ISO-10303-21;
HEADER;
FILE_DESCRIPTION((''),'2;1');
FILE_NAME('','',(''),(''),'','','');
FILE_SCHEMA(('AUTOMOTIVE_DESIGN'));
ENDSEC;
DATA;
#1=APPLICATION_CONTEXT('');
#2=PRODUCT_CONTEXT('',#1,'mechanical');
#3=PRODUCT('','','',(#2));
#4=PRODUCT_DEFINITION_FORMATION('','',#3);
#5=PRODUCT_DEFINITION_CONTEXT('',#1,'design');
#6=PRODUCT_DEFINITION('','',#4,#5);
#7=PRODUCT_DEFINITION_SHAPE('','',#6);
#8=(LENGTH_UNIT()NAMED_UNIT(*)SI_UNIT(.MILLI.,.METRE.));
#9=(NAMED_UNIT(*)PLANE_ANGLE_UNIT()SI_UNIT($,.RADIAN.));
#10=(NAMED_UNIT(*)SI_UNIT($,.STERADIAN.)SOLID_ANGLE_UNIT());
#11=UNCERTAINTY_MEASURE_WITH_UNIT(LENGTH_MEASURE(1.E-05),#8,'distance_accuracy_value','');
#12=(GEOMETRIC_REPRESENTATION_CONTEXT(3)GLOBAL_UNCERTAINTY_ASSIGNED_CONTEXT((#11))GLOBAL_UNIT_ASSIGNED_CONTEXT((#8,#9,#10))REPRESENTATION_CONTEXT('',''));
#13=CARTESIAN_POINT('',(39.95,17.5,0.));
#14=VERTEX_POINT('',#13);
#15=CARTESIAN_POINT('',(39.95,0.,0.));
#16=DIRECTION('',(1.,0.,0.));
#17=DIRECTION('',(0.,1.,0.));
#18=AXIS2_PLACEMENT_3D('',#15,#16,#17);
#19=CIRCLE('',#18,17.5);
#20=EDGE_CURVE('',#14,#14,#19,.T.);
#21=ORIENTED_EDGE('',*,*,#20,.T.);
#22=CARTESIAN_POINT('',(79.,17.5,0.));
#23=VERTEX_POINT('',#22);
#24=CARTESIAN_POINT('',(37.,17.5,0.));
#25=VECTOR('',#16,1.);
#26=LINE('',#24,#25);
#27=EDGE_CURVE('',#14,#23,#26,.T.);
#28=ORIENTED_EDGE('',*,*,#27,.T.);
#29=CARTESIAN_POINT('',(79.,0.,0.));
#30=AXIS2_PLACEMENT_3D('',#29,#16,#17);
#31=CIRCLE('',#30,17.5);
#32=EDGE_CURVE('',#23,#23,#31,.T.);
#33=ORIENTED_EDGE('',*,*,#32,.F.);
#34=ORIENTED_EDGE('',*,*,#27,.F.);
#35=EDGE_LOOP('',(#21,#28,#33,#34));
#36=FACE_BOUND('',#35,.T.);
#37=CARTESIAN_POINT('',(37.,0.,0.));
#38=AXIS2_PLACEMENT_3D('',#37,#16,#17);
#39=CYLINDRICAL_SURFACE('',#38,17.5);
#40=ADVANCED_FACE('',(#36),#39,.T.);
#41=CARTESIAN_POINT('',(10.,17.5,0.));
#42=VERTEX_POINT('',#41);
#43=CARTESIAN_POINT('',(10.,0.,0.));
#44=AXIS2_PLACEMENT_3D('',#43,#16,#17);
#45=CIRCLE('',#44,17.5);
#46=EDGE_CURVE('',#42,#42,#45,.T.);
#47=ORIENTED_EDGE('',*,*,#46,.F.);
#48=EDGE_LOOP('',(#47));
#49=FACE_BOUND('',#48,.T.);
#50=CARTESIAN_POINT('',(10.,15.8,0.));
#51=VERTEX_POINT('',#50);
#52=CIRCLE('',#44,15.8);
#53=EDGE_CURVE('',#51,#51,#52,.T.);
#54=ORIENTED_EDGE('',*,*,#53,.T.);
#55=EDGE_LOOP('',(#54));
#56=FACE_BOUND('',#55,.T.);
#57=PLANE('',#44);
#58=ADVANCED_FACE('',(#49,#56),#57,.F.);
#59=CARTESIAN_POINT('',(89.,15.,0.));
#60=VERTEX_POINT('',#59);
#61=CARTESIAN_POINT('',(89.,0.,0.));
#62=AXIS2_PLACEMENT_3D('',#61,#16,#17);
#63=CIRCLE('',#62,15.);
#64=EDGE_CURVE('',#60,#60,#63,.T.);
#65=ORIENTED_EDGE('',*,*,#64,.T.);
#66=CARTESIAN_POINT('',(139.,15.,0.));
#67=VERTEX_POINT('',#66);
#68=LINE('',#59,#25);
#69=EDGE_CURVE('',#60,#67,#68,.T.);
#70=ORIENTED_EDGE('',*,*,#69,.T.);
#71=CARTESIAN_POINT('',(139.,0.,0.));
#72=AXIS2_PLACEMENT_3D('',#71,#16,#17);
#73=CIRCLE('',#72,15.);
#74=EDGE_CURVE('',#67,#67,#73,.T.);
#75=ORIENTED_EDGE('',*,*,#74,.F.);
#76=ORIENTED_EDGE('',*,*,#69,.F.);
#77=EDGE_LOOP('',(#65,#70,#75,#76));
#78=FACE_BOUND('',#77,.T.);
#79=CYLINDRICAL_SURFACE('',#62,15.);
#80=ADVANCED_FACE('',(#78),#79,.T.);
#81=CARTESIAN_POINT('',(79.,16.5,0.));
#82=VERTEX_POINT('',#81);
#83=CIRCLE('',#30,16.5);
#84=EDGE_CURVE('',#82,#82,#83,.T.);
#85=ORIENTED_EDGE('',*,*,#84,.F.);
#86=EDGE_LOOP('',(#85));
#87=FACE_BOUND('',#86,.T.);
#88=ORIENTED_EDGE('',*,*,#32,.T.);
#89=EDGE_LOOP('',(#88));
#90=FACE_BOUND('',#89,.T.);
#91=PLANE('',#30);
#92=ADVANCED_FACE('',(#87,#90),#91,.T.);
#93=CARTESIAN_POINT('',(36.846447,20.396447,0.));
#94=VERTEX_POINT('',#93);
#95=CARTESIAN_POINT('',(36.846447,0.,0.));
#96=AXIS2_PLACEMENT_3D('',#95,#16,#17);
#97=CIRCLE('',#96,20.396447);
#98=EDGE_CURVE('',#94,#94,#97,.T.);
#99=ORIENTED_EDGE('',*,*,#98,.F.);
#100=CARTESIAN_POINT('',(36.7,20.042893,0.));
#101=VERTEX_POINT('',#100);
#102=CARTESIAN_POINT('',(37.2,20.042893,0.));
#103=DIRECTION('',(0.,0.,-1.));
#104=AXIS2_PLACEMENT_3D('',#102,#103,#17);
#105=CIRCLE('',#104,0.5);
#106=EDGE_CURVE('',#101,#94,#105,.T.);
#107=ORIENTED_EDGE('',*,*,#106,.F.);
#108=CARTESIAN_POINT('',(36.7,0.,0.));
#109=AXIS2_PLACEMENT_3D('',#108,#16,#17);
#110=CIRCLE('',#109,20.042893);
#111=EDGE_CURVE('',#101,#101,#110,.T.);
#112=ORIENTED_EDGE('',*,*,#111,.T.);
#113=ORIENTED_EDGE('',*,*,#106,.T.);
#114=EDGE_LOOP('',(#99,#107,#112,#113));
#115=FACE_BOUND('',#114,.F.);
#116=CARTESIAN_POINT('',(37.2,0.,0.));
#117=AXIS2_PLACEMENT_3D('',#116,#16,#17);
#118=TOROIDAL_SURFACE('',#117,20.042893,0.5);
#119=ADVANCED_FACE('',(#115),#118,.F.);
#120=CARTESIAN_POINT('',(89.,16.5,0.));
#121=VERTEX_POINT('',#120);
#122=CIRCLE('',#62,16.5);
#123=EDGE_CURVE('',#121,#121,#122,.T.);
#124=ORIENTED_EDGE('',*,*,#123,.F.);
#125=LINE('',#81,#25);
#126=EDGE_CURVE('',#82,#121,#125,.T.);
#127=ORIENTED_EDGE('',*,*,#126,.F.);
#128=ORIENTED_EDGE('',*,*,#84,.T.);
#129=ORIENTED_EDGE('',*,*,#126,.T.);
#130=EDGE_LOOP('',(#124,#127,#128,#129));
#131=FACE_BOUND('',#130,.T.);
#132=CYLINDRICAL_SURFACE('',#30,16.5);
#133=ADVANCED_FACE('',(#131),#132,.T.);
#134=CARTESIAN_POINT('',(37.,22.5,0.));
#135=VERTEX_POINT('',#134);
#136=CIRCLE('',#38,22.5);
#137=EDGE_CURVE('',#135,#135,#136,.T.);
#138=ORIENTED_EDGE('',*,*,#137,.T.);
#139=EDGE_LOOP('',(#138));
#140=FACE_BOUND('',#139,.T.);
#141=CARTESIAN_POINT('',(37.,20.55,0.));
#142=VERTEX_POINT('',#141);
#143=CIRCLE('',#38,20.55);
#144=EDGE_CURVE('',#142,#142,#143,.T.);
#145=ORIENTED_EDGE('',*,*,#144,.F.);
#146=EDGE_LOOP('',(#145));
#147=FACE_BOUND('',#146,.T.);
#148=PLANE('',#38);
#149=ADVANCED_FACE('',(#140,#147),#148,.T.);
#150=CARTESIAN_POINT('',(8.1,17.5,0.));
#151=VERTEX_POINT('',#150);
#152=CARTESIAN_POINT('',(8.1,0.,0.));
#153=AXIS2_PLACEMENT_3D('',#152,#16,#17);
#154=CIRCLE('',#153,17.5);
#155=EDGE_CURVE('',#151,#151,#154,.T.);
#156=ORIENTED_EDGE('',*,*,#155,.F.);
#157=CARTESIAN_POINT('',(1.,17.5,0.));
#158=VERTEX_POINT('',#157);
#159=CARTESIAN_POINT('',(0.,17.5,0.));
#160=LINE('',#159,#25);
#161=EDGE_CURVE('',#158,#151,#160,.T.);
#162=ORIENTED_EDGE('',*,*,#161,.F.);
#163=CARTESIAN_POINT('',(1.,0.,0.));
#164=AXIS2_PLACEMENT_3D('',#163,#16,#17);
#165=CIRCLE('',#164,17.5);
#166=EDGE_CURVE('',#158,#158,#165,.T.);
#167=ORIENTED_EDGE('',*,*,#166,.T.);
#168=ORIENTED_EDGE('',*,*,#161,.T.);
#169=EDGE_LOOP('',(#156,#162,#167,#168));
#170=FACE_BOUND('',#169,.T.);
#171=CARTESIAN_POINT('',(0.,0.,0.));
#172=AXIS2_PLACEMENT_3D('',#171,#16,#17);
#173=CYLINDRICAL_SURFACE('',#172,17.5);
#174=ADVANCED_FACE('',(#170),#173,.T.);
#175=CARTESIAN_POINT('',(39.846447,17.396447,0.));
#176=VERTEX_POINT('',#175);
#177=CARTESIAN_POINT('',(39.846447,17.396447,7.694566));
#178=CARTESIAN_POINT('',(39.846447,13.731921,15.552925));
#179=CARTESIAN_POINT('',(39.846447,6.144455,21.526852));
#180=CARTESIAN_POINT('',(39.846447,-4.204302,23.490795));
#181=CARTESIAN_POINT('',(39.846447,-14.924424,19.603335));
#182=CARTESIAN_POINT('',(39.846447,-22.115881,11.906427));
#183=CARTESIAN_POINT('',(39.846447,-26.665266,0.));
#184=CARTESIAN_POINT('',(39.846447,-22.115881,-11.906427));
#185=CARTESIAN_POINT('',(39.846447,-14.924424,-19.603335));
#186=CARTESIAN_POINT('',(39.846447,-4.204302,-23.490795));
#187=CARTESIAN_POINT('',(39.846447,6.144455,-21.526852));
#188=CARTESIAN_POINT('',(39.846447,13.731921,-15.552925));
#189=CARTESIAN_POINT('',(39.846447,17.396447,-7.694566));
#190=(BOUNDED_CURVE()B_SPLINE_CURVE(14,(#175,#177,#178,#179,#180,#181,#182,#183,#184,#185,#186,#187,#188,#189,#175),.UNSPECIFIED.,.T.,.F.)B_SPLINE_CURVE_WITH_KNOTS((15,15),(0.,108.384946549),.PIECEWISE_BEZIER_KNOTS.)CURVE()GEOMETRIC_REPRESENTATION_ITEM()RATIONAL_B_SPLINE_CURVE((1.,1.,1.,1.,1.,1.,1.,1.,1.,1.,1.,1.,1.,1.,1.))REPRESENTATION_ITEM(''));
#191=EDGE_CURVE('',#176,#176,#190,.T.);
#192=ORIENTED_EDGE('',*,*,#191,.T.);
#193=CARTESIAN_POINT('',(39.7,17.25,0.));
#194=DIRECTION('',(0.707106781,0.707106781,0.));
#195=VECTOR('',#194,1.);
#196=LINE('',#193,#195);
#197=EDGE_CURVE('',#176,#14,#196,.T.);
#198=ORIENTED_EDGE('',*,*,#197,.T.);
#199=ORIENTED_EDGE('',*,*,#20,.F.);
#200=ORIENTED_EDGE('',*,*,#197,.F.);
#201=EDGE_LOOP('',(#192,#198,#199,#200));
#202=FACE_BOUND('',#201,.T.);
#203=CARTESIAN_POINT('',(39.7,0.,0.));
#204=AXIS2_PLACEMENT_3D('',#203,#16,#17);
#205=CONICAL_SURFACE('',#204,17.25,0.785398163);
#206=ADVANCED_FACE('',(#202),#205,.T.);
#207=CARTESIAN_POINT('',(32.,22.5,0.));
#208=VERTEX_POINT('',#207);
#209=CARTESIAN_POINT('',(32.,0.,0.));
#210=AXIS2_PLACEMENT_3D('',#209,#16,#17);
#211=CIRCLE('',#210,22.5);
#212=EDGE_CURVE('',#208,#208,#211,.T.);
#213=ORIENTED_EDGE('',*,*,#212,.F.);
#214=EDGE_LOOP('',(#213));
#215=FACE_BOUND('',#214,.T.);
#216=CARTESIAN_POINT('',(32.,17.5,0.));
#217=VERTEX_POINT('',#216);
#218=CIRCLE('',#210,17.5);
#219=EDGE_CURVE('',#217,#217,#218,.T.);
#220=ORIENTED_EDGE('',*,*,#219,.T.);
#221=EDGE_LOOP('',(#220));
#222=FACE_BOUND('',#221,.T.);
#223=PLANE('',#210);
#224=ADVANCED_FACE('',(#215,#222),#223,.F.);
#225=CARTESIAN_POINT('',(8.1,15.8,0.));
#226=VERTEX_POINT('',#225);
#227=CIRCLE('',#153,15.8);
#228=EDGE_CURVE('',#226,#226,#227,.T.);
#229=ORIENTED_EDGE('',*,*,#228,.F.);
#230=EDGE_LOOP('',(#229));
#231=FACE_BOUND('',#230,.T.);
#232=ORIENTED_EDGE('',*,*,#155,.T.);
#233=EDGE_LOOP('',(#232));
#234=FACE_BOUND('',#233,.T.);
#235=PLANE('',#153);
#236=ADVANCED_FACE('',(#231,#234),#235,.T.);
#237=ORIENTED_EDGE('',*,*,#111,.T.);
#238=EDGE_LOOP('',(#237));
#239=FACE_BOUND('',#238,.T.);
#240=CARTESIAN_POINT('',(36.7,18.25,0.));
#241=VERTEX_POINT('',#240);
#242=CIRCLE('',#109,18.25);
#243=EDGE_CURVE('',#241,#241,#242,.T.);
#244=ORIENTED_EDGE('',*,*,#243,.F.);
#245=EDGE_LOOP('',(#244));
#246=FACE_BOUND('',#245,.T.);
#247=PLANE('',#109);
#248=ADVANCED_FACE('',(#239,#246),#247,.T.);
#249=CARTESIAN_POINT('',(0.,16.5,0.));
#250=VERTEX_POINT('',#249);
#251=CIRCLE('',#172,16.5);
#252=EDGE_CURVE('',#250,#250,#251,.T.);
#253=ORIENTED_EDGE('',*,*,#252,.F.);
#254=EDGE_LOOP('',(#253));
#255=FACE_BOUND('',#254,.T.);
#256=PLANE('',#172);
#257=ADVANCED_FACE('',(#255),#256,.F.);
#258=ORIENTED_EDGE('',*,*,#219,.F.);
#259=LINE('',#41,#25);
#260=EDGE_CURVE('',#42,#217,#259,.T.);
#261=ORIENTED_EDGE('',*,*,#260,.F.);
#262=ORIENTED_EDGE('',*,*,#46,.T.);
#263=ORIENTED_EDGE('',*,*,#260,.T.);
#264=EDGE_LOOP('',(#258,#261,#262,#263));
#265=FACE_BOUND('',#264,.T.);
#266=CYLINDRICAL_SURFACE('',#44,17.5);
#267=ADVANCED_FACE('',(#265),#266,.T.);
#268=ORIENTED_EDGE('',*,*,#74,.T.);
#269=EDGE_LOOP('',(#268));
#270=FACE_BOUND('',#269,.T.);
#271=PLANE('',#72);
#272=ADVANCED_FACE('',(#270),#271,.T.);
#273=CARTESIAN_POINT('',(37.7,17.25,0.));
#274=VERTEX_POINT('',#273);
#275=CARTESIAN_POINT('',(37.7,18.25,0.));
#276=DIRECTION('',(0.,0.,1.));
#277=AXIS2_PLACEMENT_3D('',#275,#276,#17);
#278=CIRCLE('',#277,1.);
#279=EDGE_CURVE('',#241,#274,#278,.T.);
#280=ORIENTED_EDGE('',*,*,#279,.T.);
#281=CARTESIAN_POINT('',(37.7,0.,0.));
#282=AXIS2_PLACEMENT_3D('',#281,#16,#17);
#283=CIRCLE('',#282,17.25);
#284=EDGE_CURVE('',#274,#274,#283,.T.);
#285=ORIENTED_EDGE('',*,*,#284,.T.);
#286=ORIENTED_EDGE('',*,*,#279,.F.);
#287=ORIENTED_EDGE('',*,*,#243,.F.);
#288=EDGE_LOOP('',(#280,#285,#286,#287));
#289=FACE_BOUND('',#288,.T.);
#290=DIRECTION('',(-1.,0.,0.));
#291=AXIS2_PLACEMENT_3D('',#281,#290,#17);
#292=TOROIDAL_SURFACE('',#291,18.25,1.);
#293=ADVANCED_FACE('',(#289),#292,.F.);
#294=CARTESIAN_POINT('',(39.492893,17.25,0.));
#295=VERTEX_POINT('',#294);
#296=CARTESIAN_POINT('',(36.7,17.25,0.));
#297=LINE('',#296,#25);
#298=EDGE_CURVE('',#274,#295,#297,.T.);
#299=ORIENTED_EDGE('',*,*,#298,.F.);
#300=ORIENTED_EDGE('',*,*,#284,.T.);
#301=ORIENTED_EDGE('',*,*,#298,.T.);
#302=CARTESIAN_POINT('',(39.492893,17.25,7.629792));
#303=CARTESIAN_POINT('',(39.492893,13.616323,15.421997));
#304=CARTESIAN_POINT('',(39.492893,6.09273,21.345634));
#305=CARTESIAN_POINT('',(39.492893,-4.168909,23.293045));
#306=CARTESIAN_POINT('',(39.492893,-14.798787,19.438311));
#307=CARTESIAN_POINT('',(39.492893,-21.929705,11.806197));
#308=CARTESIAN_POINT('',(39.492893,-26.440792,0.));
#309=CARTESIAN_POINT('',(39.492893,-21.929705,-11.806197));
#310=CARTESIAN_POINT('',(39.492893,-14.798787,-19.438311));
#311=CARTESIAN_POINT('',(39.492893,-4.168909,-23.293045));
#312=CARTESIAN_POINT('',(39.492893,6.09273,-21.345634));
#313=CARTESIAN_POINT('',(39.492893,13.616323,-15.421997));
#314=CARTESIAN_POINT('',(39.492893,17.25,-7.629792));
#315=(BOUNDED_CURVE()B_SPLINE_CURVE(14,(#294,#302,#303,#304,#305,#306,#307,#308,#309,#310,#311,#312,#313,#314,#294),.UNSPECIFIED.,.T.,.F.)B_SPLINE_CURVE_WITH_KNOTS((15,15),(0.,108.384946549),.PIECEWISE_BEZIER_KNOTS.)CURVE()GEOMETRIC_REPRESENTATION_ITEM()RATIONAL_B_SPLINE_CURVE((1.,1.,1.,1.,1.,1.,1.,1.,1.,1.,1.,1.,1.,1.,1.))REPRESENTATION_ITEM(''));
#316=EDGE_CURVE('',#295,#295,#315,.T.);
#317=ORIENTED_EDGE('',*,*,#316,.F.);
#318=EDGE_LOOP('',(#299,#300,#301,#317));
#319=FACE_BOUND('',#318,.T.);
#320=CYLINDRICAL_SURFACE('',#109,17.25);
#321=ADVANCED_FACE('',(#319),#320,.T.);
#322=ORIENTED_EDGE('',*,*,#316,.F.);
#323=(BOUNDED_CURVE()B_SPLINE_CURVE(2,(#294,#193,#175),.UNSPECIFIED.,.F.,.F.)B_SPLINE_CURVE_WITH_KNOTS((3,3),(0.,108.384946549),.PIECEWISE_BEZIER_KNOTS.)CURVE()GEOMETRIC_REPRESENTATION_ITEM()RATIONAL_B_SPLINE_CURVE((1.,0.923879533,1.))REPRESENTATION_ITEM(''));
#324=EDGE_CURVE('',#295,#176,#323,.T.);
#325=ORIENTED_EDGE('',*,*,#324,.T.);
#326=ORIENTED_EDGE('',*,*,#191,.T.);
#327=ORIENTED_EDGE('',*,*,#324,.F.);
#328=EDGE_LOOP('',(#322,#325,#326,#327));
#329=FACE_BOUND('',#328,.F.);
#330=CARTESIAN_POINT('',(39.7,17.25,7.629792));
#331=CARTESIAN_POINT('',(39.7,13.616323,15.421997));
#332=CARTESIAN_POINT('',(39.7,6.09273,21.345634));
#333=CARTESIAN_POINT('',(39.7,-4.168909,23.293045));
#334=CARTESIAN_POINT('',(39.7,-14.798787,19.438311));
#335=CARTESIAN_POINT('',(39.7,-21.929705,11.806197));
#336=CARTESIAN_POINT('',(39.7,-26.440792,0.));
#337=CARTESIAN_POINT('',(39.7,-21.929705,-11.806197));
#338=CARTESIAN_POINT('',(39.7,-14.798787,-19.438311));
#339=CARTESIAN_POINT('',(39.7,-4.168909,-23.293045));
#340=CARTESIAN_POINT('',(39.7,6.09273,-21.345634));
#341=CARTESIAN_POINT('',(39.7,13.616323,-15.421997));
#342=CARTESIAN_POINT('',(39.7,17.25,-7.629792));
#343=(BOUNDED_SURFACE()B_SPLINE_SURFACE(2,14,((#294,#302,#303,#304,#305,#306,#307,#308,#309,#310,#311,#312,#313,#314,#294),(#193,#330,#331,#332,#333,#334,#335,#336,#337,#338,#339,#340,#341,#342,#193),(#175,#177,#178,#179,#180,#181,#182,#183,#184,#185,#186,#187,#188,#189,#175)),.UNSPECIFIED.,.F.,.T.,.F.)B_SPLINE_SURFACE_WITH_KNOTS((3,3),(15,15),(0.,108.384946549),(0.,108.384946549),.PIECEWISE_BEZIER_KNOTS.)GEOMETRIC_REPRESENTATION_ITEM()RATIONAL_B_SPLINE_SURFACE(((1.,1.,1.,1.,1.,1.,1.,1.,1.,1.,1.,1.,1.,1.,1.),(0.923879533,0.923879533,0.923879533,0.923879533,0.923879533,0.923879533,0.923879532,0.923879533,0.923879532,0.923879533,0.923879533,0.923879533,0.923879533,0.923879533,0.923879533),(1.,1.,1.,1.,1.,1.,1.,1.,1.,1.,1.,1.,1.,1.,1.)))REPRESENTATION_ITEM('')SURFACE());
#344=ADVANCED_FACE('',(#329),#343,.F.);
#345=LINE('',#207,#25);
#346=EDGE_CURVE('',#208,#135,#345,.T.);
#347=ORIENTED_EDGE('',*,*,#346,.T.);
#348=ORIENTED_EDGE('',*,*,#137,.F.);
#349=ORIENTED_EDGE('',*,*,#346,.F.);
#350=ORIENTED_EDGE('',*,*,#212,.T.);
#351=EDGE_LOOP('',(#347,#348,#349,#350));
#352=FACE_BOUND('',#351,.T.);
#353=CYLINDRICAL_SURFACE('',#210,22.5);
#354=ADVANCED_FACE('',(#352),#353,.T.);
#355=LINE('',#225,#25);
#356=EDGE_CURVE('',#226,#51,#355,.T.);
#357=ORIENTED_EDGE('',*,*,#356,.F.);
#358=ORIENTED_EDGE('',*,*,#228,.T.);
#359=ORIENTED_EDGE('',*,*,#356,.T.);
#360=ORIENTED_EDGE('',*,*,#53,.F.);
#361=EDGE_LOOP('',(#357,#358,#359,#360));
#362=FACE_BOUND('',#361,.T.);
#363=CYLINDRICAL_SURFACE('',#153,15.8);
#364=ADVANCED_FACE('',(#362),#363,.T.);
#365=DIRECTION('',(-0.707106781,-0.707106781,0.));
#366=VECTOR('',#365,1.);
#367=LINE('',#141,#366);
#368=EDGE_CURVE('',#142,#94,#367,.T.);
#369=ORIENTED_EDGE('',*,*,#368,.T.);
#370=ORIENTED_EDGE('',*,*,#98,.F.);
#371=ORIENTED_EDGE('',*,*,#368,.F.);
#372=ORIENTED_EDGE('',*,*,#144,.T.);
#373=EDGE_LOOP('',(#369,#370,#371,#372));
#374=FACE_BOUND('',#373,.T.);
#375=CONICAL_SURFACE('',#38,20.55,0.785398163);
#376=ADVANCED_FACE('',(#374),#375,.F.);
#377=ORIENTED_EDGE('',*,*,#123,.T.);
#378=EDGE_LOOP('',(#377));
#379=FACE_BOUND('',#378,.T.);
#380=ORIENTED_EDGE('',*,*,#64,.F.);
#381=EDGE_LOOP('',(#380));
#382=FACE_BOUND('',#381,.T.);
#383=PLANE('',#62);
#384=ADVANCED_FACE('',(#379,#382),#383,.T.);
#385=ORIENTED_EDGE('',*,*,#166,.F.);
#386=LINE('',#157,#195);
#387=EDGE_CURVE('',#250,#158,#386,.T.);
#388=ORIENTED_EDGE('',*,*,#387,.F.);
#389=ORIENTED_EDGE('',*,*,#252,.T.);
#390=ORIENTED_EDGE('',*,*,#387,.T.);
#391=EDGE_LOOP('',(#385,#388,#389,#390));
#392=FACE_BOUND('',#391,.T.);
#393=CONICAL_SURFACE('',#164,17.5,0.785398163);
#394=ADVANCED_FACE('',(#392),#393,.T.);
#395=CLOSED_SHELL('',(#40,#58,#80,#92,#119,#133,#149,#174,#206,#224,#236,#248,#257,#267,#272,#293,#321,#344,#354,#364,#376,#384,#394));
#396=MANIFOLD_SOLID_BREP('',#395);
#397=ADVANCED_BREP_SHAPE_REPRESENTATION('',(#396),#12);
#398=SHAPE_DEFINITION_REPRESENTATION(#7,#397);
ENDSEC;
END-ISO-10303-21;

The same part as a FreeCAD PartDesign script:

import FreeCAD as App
import Part
import Sketcher

V = App.Vector
Q = App.Units.Quantity


def edges_at(feature, points):
    """Names of the edges that pass closest to the given points."""
    edges = feature.Shape.Edges
    near = lambda p: min(range(len(edges)), key=lambda i: edges[i].distToShape(Part.Vertex(*p))[0])
    return sorted({f"Edge{near(p) + 1}" for p in points})


def add_polygon(sketch, points):
    """Adds a closed chain of lines whose ends are joined by coincident constraints."""
    first, n = sketch.GeometryCount, len(points)
    for a, b in zip(points, points[1:] + points[:1]):
        sketch.addGeometry(Part.LineSegment(App.Vector(*a, 0), App.Vector(*b, 0)), False)
    for i in range(n):
        sketch.addConstraint(Sketcher.Constraint("Coincident", first + i, 2, first + (i + 1) % n, 1))

doc = App.newDocument("Part")
body = doc.addObject("PartDesign::Body", "Body")

# Sketch on XY plane
sketch1 = body.newObject("Sketcher::SketchObject", "Sketch")
sketch1.AttachmentSupport = (doc.getObject("XY_Plane"), [""])
sketch1.MapMode = "FlatFace"
add_polygon(sketch1, [(0, 17.5), (0, 0), (139, 0), (139, 15), (89, 15), (89, 16.5), (79, 16.5), (79, 17.5), (37, 17.5), (37, 22.5), (32, 22.5), (32, 17.5), (10, 17.5), (10, 15.8), (8.1, 15.8), (8.1, 17.5)])  # lines 0-15
sketch1.addConstraint(Sketcher.Constraint("Vertical", 0))
sketch1.addConstraint(Sketcher.Constraint("Horizontal", 1))
sketch1.addConstraint(Sketcher.Constraint("Vertical", 2))
sketch1.addConstraint(Sketcher.Constraint("Horizontal", 3))
sketch1.addConstraint(Sketcher.Constraint("Vertical", 4))
sketch1.addConstraint(Sketcher.Constraint("Horizontal", 5))
sketch1.addConstraint(Sketcher.Constraint("Vertical", 6))
sketch1.addConstraint(Sketcher.Constraint("Horizontal", 7))
sketch1.addConstraint(Sketcher.Constraint("Vertical", 8))
sketch1.addConstraint(Sketcher.Constraint("Horizontal", 9))
sketch1.addConstraint(Sketcher.Constraint("Vertical", 10))
sketch1.addConstraint(Sketcher.Constraint("Horizontal", 11))
sketch1.addConstraint(Sketcher.Constraint("Vertical", 12))
sketch1.addConstraint(Sketcher.Constraint("Horizontal", 13))
sketch1.addConstraint(Sketcher.Constraint("Vertical", 14))
sketch1.addConstraint(Sketcher.Constraint("Horizontal", 15))
sketch1.addConstraint(Sketcher.Constraint("Coincident", 0, 2, -1, 1))
sketch1.addConstraint(Sketcher.Constraint("Horizontal", 7, 2, 10, 2))
sketch1.addConstraint(Sketcher.Constraint("Horizontal", 11, 2, 14, 2))
sketch1.addConstraint(Sketcher.Constraint("Equal", 9, 8))
sketch1.addConstraint(Sketcher.Constraint("DistanceX", 3, 2, 3, 1, 50.0))
sketch1.addConstraint(Sketcher.Constraint("DistanceX", 5, 2, 5, 1, 10.0))
sketch1.addConstraint(Sketcher.Constraint("DistanceX", 7, 2, 7, 1, 42.0))
sketch1.addConstraint(Sketcher.Constraint("DistanceX", 9, 2, 9, 1, 5.0))
sketch1.addConstraint(Sketcher.Constraint("DistanceX", 11, 2, 11, 1, 22.0))
sketch1.addConstraint(Sketcher.Constraint("DistanceX", 13, 2, 13, 1, 1.9))
sketch1.addConstraint(Sketcher.Constraint("DistanceY", 12, 2, 12, 1, 1.7))
sketch1.addConstraint(Sketcher.Constraint("DistanceX", -1, 1, 11, 2, 10.0))
sketch1.addConstraint(Sketcher.Constraint("DistanceY", 2, 1, 2, 2, 15.0))
sketch1.addConstraint(Sketcher.Constraint("DistanceY", 6, 1, 6, 2, 1.0))
sketch1.addConstraint(Sketcher.Constraint("DistanceY", 0, 2, 0, 1, 17.5))
revolution = body.newObject("PartDesign::Revolution", "Revolution")
revolution.Profile = sketch1
revolution.ReferenceAxis = (sketch1, ["H_Axis"])
revolution.Angle = 360
doc.recompute()

chamfer = body.newObject("PartDesign::Chamfer", "Chamfer")
chamfer.Base = (revolution, edges_at(revolution, [(0, -17.5, 0)]))
chamfer.Size = 1

# Sketch on XY plane
sketch2 = body.newObject("Sketcher::SketchObject", "Sketch001")
sketch2.AttachmentSupport = (doc.getObject("XY_Plane"), [""])
sketch2.MapMode = "FlatFace"
add_polygon(sketch2, [(39.95, 20.55), (37, 20.55), (36.7, 20.25), (36.7, 17.25), (39.7, 17.25), (39.95, 17.5)])  # lines 0-5
sketch2.addConstraint(Sketcher.Constraint("Horizontal", 0))
sketch2.addConstraint(Sketcher.Constraint("Vertical", 2))
sketch2.addConstraint(Sketcher.Constraint("Horizontal", 3))
sketch2.addConstraint(Sketcher.Constraint("Vertical", 5))
sketch2.addConstraint(Sketcher.Constraint("Parallel", 1, 4))
sketch2.addConstraint(Sketcher.Constraint("Equal", 3, 2))
sketch2.addConstraint(Sketcher.Constraint("DistanceX", 3, 1, 3, 2, 3.0))
sketch2.addConstraint(Sketcher.Constraint("Angle", 4, Q("45 deg")))
sketch2.addConstraint(Sketcher.Constraint("DistanceX", 1, 2, 0, 2, 0.3))
sketch2.addConstraint(Sketcher.Constraint("DistanceX", 3, 2, 4, 2, 0.25))
sketch2.addConstraint(Sketcher.Constraint("DistanceX", -1, 1, 0, 2, 37.0))
sketch2.addConstraint(Sketcher.Constraint("DistanceY", -1, 1, 4, 2, 17.5))
groove = body.newObject("PartDesign::Groove", "Groove")
groove.Profile = sketch2
groove.ReferenceAxis = (sketch2, ["H_Axis"])
groove.Angle = 360
doc.recompute()

fillet = body.newObject("PartDesign::Fillet", "Fillet")
fillet.Base = (groove, edges_at(groove, [(36.7, -17.25, 0)]))
fillet.Radius = 1
doc.recompute()

fillet2 = body.newObject("PartDesign::Fillet", "Fillet001")
fillet2.Base = (fillet, edges_at(fillet, [(36.7, -20.25, 0)]))
fillet2.Radius = 0.5
doc.recompute()

fillet3 = body.newObject("PartDesign::Fillet", "Fillet002")
fillet3.Base = (fillet2, edges_at(fillet2, [(39.7, -17.25, 0)]))
fillet3.Radius = 0.5

doc.recompute()
